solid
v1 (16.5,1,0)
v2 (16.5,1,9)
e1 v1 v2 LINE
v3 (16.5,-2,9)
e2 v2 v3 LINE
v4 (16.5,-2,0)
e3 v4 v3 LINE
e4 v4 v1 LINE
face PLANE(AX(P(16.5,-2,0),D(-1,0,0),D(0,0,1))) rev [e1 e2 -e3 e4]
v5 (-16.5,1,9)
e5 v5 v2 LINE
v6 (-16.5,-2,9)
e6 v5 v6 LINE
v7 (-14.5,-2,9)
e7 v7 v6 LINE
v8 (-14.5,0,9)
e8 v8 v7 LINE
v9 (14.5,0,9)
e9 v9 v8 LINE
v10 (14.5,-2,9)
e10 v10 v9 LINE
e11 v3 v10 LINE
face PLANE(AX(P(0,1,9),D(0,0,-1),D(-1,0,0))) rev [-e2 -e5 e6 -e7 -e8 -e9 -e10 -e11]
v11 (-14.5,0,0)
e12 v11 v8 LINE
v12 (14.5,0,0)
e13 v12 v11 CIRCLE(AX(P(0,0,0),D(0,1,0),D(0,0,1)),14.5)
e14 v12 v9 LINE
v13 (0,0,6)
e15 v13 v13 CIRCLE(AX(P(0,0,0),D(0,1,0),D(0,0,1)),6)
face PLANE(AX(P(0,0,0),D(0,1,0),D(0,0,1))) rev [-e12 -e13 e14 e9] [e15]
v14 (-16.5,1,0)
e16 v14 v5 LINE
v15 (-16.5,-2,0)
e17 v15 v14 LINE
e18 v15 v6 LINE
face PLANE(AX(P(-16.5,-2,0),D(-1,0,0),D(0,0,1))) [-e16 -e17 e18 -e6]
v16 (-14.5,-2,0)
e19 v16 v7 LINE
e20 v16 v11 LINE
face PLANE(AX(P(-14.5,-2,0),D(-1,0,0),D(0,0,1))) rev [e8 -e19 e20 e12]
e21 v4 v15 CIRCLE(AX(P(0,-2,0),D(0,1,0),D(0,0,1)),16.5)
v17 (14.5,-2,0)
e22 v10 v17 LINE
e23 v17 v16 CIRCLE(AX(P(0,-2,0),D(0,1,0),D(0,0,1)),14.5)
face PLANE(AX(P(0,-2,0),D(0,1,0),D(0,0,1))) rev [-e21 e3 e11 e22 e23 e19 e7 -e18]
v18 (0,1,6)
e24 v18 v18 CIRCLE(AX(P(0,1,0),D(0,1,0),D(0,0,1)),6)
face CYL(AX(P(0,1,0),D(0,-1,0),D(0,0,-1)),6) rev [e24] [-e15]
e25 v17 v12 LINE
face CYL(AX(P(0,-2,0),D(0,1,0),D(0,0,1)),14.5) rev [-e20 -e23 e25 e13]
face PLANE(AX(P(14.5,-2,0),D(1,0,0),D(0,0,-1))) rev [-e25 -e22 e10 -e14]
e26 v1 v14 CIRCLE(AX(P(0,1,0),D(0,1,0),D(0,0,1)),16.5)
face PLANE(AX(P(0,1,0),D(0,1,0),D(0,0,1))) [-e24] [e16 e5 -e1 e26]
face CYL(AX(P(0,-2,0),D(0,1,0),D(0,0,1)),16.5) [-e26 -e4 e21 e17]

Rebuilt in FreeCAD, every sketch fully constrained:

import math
import FreeCAD as App
import Part
import Sketcher


def add_polygon(sketch, points):
    """Adds a closed chain of lines whose ends are joined by coincident constraints."""
    first, n = sketch.GeometryCount, len(points)
    for a, b in zip(points, points[1:] + points[:1]):
        sketch.addGeometry(Part.LineSegment(App.Vector(*a, 0), App.Vector(*b, 0)), False)
    for i in range(n):
        sketch.addConstraint(Sketcher.Constraint("Coincident", first + i, 2, first + (i + 1) % n, 1))

doc = App.newDocument("Part")
body = doc.addObject("PartDesign::Body", "Body")

sketch1 = body.newObject("Sketcher::SketchObject", "Sketch")
sketch1.AttachmentSupport = (doc.getObject("XZ_Plane"), [""])
sketch1.MapMode = "FlatFace"
sketch1.addGeometry([
    Part.ArcOfCircle(Part.Circle(App.Vector(0, 0, 0), App.Vector(0, 0, 1), 14), math.radians(180), math.radians(360)),
    Part.LineSegment(App.Vector(-14, 0, 0), App.Vector(-14, 14, 0)),
    Part.LineSegment(App.Vector(-14, 14, 0), App.Vector(14, 14, 0)),
    Part.LineSegment(App.Vector(14, 14, 0), App.Vector(14, 0, 0)),
    Part.Circle(App.Vector(0, 0, 0), App.Vector(0, 0, 1), 6),
], False)
sketch1.addConstraint([
    Sketcher.Constraint("Tangent", 0, 1, 1, 1),
    Sketcher.Constraint("Coincident", 1, 2, 2, 1),
    Sketcher.Constraint("Coincident", 2, 2, 3, 1),
    Sketcher.Constraint("Tangent", 3, 2, 0, 2),
    Sketcher.Constraint("Vertical", 1),
    Sketcher.Constraint("Horizontal", 2),
    Sketcher.Constraint("Vertical", 3),
    Sketcher.Constraint("Coincident", 0, 3, -1, 1),
    Sketcher.Constraint("Coincident", 4, 3, -1, 1),
    Sketcher.Constraint("Diameter", 4, 12.0),
    Sketcher.Constraint("Radius", 0, 14.5),
    Sketcher.Constraint("DistanceY", 1, 1, 1, 2, 14.5),
])
pad1 = body.newObject("PartDesign::Pad", "Pad")
pad1.Profile = sketch1
pad1.Length = 1
pad1.Reversed = True

sketch2 = body.newObject("Sketcher::SketchObject", "Sketch001")
sketch2.AttachmentSupport = (doc.getObject("XZ_Plane"), [""])
sketch2.MapMode = "FlatFace"
sketch2.AttachmentOffset = App.Placement(App.Vector(0, 0, 2), App.Rotation())
sketch2.addGeometry([
    Part.LineSegment(App.Vector(16, 16, 0), App.Vector(16, 0, 0)),
    Part.ArcOfCircle(Part.Circle(App.Vector(0, 0, 0), App.Vector(0, 0, 1), 16), math.radians(-90), math.radians(0)),
    Part.ArcOfCircle(Part.Circle(App.Vector(0, 0, 0), App.Vector(0, 0, 1), 16), math.radians(180), math.radians(270)),
    Part.LineSegment(App.Vector(-16, 0, 0), App.Vector(-16, 16, 0)),
    Part.LineSegment(App.Vector(-16, 16, 0), App.Vector(16, 16, 0)),
    Part.LineSegment(App.Vector(14, 0, 0), App.Vector(14, 14, 0)),
    Part.LineSegment(App.Vector(14, 14, 0), App.Vector(-14, 14, 0)),
    Part.LineSegment(App.Vector(-14, 14, 0), App.Vector(-14, 0, 0)),
    Part.ArcOfCircle(Part.Circle(App.Vector(0, 0, 0), App.Vector(0, 0, 1), 14), math.radians(180), math.radians(360)),
], False)
sketch2.addConstraint([
    Sketcher.Constraint("Tangent", 0, 2, 1, 2),
    Sketcher.Constraint("Tangent", 1, 1, 2, 2),
    Sketcher.Constraint("Tangent", 2, 1, 3, 1),
    Sketcher.Constraint("Coincident", 3, 2, 4, 1),
    Sketcher.Constraint("Coincident", 4, 2, 0, 1),
    Sketcher.Constraint("Coincident", 5, 2, 6, 1),
    Sketcher.Constraint("Coincident", 6, 2, 7, 1),
    Sketcher.Constraint("Tangent", 7, 2, 8, 1),
    Sketcher.Constraint("Tangent", 8, 2, 5, 1),
    Sketcher.Constraint("Vertical", 0),
    Sketcher.Constraint("Vertical", 3),
    Sketcher.Constraint("Horizontal", 4),
    Sketcher.Constraint("Vertical", 5),
    Sketcher.Constraint("Horizontal", 6),
    Sketcher.Constraint("Vertical", 7),
    Sketcher.Constraint("Coincident", 1, 3, -1, 1),
    Sketcher.Constraint("Coincident", 8, 3, -1, 1),
    Sketcher.Constraint("Equal", 1, 2),
    Sketcher.Constraint("PointOnObject", 1, 1, -2),
    Sketcher.Constraint("Radius", 1, 16.5),
    Sketcher.Constraint("Radius", 8, 14.5),
    Sketcher.Constraint("DistanceY", 0, 2, 0, 1, 16.5),
    Sketcher.Constraint("DistanceY", 5, 1, 5, 2, 14.5),
])
pad2 = body.newObject("PartDesign::Pad", "Pad001")
pad2.Profile = sketch2
pad2.Length = 3
pad2.Reversed = True

sketch3 = body.newObject("Sketcher::SketchObject", "Sketch002")
sketch3.AttachmentSupport = (doc.getObject("XZ_Plane"), [""])
sketch3.MapMode = "FlatFace"
sketch3.AttachmentOffset = App.Placement(App.Vector(0, 0, 2), App.Rotation())
add_polygon(sketch3, [(16, 16), (-16, 16), (-16, 9), (16, 9)])
sketch3.addConstraint([
    Sketcher.Constraint("Horizontal", 0),
    Sketcher.Constraint("Vertical", 1),
    Sketcher.Constraint("Horizontal", 2),
    Sketcher.Constraint("Vertical", 3),
    Sketcher.Constraint("DistanceX", 0, 2, 0, 1, 33.0),
    Sketcher.Constraint("DistanceY", 1, 2, 1, 1, 7.5),
    Sketcher.Constraint("DistanceY", -1, 1, 1, 2, 9.0),
    Sketcher.Constraint("DistanceX", 0, 2, -1, 1, 16.5),
])
pocket1 = body.newObject("PartDesign::Pocket", "Pocket")
pocket1.Profile = sketch3
pocket1.Type = "ThroughAll"
pocket1.Midplane = True

doc.recompute()
